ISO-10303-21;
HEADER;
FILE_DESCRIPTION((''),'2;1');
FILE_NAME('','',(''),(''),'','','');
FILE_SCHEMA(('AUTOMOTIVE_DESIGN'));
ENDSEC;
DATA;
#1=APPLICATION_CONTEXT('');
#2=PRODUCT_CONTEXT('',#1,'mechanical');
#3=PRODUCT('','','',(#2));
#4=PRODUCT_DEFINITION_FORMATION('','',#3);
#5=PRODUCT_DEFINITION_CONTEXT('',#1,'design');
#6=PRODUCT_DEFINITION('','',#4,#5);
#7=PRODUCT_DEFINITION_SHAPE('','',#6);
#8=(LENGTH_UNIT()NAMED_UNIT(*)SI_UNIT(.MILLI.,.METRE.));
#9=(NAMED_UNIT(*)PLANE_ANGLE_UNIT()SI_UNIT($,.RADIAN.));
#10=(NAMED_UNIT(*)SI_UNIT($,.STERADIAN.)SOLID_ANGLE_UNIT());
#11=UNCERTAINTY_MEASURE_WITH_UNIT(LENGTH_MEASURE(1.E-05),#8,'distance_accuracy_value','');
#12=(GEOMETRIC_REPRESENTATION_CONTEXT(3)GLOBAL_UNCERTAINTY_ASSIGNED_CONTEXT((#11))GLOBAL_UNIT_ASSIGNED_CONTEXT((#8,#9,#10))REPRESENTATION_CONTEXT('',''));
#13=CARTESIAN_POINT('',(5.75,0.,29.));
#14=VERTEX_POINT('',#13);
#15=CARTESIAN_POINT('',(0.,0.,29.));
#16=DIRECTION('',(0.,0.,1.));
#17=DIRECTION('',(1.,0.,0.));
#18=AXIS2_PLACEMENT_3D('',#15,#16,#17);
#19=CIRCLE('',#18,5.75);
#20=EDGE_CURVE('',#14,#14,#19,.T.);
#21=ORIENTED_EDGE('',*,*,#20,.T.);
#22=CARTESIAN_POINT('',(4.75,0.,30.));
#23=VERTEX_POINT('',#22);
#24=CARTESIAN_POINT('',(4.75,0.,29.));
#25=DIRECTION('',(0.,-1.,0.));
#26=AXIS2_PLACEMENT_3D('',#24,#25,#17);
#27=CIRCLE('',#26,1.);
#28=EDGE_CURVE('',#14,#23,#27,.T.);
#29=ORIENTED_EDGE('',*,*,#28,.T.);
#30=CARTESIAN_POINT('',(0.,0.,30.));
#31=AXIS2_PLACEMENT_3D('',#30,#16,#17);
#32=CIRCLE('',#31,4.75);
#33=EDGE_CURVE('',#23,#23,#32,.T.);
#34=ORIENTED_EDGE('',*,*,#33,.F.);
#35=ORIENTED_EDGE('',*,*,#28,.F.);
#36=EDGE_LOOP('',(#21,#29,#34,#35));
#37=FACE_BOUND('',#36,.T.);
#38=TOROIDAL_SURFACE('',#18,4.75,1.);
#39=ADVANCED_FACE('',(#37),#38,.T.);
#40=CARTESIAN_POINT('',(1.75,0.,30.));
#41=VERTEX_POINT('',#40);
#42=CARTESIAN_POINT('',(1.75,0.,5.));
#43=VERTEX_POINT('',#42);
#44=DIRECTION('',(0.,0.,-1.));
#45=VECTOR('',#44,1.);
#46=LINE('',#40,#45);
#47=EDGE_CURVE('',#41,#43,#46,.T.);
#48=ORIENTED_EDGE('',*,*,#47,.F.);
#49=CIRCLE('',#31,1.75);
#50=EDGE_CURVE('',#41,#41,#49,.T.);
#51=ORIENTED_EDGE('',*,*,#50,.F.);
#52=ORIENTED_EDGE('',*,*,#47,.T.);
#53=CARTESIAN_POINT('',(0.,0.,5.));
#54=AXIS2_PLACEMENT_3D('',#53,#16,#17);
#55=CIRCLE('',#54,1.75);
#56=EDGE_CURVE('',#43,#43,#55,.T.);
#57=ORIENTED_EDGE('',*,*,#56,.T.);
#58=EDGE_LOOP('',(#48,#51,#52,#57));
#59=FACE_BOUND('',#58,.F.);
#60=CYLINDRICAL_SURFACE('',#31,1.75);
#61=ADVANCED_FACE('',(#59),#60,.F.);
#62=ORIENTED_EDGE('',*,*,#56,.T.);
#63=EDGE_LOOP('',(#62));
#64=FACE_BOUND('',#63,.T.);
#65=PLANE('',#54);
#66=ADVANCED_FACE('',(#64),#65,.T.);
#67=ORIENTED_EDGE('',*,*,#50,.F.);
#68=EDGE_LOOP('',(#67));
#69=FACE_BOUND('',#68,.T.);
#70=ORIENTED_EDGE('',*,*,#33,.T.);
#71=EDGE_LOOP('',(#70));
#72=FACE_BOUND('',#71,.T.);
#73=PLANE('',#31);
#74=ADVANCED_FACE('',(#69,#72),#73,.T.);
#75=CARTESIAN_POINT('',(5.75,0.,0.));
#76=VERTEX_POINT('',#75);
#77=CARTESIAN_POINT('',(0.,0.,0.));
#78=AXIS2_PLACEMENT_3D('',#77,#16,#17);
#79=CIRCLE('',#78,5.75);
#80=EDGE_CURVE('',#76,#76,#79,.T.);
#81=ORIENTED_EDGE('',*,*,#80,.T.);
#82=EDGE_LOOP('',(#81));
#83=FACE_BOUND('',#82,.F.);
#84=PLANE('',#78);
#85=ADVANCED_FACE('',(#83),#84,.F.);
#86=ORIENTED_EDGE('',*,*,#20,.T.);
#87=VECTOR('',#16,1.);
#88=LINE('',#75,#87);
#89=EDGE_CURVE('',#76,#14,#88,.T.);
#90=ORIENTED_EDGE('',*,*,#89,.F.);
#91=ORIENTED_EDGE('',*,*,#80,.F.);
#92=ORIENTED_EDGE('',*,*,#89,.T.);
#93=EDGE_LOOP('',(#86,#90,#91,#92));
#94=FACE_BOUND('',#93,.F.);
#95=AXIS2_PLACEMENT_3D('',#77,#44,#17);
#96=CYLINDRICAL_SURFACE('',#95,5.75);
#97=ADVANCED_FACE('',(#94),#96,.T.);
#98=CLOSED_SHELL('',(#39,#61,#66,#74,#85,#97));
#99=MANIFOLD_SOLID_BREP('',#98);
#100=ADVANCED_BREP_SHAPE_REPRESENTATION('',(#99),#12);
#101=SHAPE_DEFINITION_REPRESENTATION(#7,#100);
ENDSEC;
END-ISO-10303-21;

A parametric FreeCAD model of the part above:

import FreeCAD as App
import Part
import Sketcher
from FreeCAD import Vector


def edges_at(feature, points):
    """Names of the edges that pass closest to the given points."""
    edges = feature.Shape.Edges
    near = lambda p: min(range(len(edges)), key=lambda i: edges[i].distToShape(Part.Vertex(*p))[0])
    return sorted({f"Edge{near(p) + 1}" for p in points})

doc = App.newDocument("Part")
body = doc.addObject("PartDesign::Body", "Body")

# Sketch on XY plane
sketch1 = body.newObject("Sketcher::SketchObject", "Sketch")
sketch1.AttachmentSupport = (doc.getObject("XY_Plane"), [""])
sketch1.MapMode = "FlatFace"
sketch1.addGeometry(Part.Circle(Vector(0, 0, 0), Vector(0, 0, 1), 6), False)
sketch1.addConstraint(Sketcher.Constraint("Coincident", 0, 3, -1, 1))
sketch1.addConstraint(Sketcher.Constraint("Diameter", 0, 11.5))
pad1 = body.newObject("PartDesign::Pad", "Pad")
pad1.Profile = sketch1
pad1.Length = 30

# Sketch on XY plane
sketch2 = body.newObject("Sketcher::SketchObject", "Sketch001")
sketch2.AttachmentSupport = (doc.getObject("XY_Plane"), [""])
sketch2.MapMode = "FlatFace"
sketch2.AttachmentOffset = App.Placement(Vector(0, 0, 30), App.Rotation())
sketch2.addGeometry(Part.Circle(Vector(0, 0, 0), Vector(0, 0, 1), 1.8), False)
sketch2.addConstraint(Sketcher.Constraint("Coincident", 0, 3, -1, 1))
sketch2.addConstraint(Sketcher.Constraint("Diameter", 0, 3.5))
pocket1 = body.newObject("PartDesign::Pocket", "Pocket")
pocket1.Profile = sketch2
pocket1.Length = 25
doc.recompute()

fillet = body.newObject("PartDesign::Fillet", "Fillet")
fillet.Base = (pocket1, edges_at(pocket1, [(-5.75, 0, 30)]))
fillet.Radius = 1

doc.recompute()
